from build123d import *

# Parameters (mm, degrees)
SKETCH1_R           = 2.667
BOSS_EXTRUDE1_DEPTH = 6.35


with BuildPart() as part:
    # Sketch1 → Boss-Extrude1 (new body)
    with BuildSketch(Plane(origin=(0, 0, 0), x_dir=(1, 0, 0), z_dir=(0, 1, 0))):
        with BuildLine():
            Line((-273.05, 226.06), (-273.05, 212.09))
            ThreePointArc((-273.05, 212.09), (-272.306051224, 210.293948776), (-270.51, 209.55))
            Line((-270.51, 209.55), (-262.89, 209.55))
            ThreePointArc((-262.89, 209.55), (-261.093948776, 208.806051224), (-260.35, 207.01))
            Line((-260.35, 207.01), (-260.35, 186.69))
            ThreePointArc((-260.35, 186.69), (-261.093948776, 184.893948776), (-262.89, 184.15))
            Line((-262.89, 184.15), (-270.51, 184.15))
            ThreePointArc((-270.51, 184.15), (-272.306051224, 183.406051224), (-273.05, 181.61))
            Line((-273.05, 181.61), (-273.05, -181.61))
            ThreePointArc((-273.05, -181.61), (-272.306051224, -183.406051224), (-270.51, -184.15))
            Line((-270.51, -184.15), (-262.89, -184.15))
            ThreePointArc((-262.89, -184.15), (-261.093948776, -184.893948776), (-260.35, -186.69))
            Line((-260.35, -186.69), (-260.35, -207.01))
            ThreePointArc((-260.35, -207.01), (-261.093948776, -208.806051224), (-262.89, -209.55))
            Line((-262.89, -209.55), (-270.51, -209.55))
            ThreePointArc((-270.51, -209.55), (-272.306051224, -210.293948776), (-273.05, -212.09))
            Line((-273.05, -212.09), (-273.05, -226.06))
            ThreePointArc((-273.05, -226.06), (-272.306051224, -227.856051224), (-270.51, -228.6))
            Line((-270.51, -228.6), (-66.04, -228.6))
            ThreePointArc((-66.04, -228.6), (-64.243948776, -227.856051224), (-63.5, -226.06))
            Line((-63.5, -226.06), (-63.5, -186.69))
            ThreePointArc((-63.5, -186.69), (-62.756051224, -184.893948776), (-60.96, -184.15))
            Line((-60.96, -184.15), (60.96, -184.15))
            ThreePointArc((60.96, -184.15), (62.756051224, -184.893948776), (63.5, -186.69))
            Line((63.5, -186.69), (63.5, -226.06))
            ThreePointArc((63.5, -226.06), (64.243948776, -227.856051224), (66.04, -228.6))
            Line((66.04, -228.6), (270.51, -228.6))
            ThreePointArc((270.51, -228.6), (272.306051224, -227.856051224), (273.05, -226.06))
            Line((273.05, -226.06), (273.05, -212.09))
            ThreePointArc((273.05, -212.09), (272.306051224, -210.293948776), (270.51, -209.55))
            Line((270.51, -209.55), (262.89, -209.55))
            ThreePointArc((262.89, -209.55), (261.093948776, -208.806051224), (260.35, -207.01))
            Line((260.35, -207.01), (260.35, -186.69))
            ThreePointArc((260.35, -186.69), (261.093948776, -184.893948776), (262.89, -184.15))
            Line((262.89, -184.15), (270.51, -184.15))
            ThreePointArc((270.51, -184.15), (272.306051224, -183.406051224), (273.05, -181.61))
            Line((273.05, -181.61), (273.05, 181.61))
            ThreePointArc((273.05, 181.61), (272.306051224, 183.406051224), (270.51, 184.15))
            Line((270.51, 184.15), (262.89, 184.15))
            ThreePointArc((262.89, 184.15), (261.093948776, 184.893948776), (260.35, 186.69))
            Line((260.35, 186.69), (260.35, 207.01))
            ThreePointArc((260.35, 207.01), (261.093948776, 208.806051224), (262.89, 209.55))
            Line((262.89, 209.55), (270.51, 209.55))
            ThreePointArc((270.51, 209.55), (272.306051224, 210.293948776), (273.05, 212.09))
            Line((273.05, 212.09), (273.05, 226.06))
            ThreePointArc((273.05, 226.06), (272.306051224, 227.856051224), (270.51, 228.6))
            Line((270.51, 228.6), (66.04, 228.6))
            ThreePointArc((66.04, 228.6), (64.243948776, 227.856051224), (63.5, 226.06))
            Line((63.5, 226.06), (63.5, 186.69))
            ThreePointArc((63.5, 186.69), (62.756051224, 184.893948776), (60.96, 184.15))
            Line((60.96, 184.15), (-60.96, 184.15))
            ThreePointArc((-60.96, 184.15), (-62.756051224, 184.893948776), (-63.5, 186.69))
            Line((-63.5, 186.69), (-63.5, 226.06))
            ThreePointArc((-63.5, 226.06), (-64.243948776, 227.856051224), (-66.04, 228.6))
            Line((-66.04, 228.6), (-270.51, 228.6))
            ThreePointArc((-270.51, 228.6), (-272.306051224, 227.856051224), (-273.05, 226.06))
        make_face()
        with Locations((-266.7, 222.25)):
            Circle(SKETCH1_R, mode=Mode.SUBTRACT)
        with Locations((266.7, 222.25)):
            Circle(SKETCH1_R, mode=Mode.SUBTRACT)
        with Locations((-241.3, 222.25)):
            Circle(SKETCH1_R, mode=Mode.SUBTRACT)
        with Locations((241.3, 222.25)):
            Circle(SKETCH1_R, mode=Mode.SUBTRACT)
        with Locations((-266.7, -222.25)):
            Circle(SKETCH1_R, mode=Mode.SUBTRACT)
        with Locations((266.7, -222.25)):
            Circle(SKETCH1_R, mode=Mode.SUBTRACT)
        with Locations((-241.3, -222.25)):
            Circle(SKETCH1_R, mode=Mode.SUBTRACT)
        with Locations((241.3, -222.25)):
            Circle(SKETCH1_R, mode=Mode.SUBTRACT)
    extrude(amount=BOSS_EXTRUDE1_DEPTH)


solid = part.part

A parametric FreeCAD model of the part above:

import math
import FreeCAD as App
import Part
import Sketcher

V = App.Vector
Q = App.Units.Quantity

doc = App.newDocument("Part")
params = doc.addObject("Spreadsheet::Sheet", "Params")
for row, (alias, value) in enumerate([
    ("sketch1_radius", "0.1 in"),
    ("sketch1_diameter", "0.21 in"),
    ("sketch1_width", "0.3 in"),
    ("sketch1_width2", "4.8 in"),
    ("sketch1_height", "0.8 in"),
    ("pad1_length", "0.25 in"),
], start=1):
    params.set(f"A{row}", alias)
    params.set(f"B{row}", "=" + value)
    params.setAlias(f"B{row}", alias)

body = doc.addObject("PartDesign::Body", "Body")

# Sketch on XZ plane
sketch1 = body.newObject("Sketcher::SketchObject", "Sketch")
sketch1.AttachmentSupport = (doc.getObject("XZ_Plane"), [""])
sketch1.MapMode = "FlatFace"
sketch1.addGeometry([
    Part.LineSegment(V(-273.1, -226.1, 0), V(-273.1, -212.1, 0)),  # 0
    Part.ArcOfCircle(Part.Circle(V(-270.5, -212.1, 0), V(0, 0, 1), 2.5), math.radians(90), math.radians(180)),  # 1
    Part.LineSegment(V(-270.5, -209.6, 0), V(-262.9, -209.6, 0)),  # 2
    Part.ArcOfCircle(Part.Circle(V(-262.9, -207, 0), V(0, 0, 1), 2.5), math.radians(-90), math.radians(0)),  # 3
    Part.LineSegment(V(-260.4, -207, 0), V(-260.4, -186.7, 0)),  # 4
    Part.ArcOfCircle(Part.Circle(V(-262.9, -186.7, 0), V(0, 0, 1), 2.5), math.radians(0), math.radians(90)),  # 5
    Part.LineSegment(V(-262.9, -184.2, 0), V(-270.5, -184.2, 0)),  # 6
    Part.ArcOfCircle(Part.Circle(V(-270.5, -181.6, 0), V(0, 0, 1), 2.5), math.radians(-180), math.radians(-90)),  # 7
    Part.LineSegment(V(-273.1, -181.6, 0), V(-273.1, 181.6, 0)),  # 8
    Part.ArcOfCircle(Part.Circle(V(-270.5, 181.6, 0), V(0, 0, 1), 2.5), math.radians(90), math.radians(180)),  # 9
    Part.LineSegment(V(-270.5, 184.2, 0), V(-262.9, 184.2, 0)),  # 10
    Part.ArcOfCircle(Part.Circle(V(-262.9, 186.7, 0), V(0, 0, 1), 2.5), math.radians(-90), math.radians(0)),  # 11
    Part.LineSegment(V(-260.4, 186.7, 0), V(-260.4, 207, 0)),  # 12
    Part.ArcOfCircle(Part.Circle(V(-262.9, 207, 0), V(0, 0, 1), 2.5), math.radians(0), math.radians(90)),  # 13
    Part.LineSegment(V(-262.9, 209.6, 0), V(-270.5, 209.6, 0)),  # 14
    Part.ArcOfCircle(Part.Circle(V(-270.5, 212.1, 0), V(0, 0, 1), 2.5), math.radians(-180), math.radians(-90)),  # 15
    Part.LineSegment(V(-273.1, 212.1, 0), V(-273.1, 226.1, 0)),  # 16
    Part.ArcOfCircle(Part.Circle(V(-270.5, 226.1, 0), V(0, 0, 1), 2.5), math.radians(90), math.radians(180)),  # 17
    Part.LineSegment(V(-270.5, 228.6, 0), V(-66, 228.6, 0)),  # 18
    Part.ArcOfCircle(Part.Circle(V(-66, 226.1, 0), V(0, 0, 1), 2.5), math.radians(0), math.radians(90)),  # 19
    Part.LineSegment(V(-63.5, 226.1, 0), V(-63.5, 186.7, 0)),  # 20
    Part.ArcOfCircle(Part.Circle(V(-61, 186.7, 0), V(0, 0, 1), 2.5), math.radians(-180), math.radians(-90)),  # 21
    Part.LineSegment(V(-61, 184.2, 0), V(61, 184.2, 0)),  # 22
    Part.ArcOfCircle(Part.Circle(V(61, 186.7, 0), V(0, 0, 1), 2.5), math.radians(-90), math.radians(0)),  # 23
    Part.LineSegment(V(63.5, 186.7, 0), V(63.5, 226.1, 0)),  # 24
    Part.ArcOfCircle(Part.Circle(V(66, 226.1, 0), V(0, 0, 1), 2.5), math.radians(90), math.radians(180)),  # 25
    Part.LineSegment(V(66, 228.6, 0), V(270.5, 228.6, 0)),  # 26
    Part.ArcOfCircle(Part.Circle(V(270.5, 226.1, 0), V(0, 0, 1), 2.5), math.radians(0), math.radians(90)),  # 27
    Part.LineSegment(V(273.1, 226.1, 0), V(273.1, 212.1, 0)),  # 28
    Part.ArcOfCircle(Part.Circle(V(270.5, 212.1, 0), V(0, 0, 1), 2.5), math.radians(-90), math.radians(0)),  # 29
    Part.LineSegment(V(270.5, 209.6, 0), V(262.9, 209.6, 0)),  # 30
    Part.ArcOfCircle(Part.Circle(V(262.9, 207, 0), V(0, 0, 1), 2.5), math.radians(90), math.radians(180)),  # 31
    Part.LineSegment(V(260.4, 207, 0), V(260.4, 186.7, 0)),  # 32
    Part.ArcOfCircle(Part.Circle(V(262.9, 186.7, 0), V(0, 0, 1), 2.5), math.radians(-180), math.radians(-90)),  # 33
    Part.LineSegment(V(262.9, 184.2, 0), V(270.5, 184.2, 0)),  # 34
    Part.ArcOfCircle(Part.Circle(V(270.5, 181.6, 0), V(0, 0, 1), 2.5), math.radians(0), math.radians(90)),  # 35
    Part.LineSegment(V(273.1, 181.6, 0), V(273.1, -181.6, 0)),  # 36
    Part.ArcOfCircle(Part.Circle(V(270.5, -181.6, 0), V(0, 0, 1), 2.5), math.radians(-90), math.radians(0)),  # 37
    Part.LineSegment(V(270.5, -184.2, 0), V(262.9, -184.2, 0)),  # 38
    Part.ArcOfCircle(Part.Circle(V(262.9, -186.7, 0), V(0, 0, 1), 2.5), math.radians(90), math.radians(180)),  # 39
    Part.LineSegment(V(260.4, -186.7, 0), V(260.4, -207, 0)),  # 40
    Part.ArcOfCircle(Part.Circle(V(262.9, -207, 0), V(0, 0, 1), 2.5), math.radians(-180), math.radians(-90)),  # 41
    Part.LineSegment(V(262.9, -209.6, 0), V(270.5, -209.6, 0)),  # 42
    Part.ArcOfCircle(Part.Circle(V(270.5, -212.1, 0), V(0, 0, 1), 2.5), math.radians(0), math.radians(90)),  # 43
    Part.LineSegment(V(273.1, -212.1, 0), V(273.1, -226.1, 0)),  # 44
    Part.ArcOfCircle(Part.Circle(V(270.5, -226.1, 0), V(0, 0, 1), 2.5), math.radians(-90), math.radians(0)),  # 45
    Part.LineSegment(V(270.5, -228.6, 0), V(66, -228.6, 0)),  # 46
    Part.ArcOfCircle(Part.Circle(V(66, -226.1, 0), V(0, 0, 1), 2.5), math.radians(-180), math.radians(-90)),  # 47
    Part.LineSegment(V(63.5, -226.1, 0), V(63.5, -186.7, 0)),  # 48
    Part.ArcOfCircle(Part.Circle(V(61, -186.7, 0), V(0, 0, 1), 2.5), math.radians(0), math.radians(90)),  # 49
    Part.LineSegment(V(61, -184.2, 0), V(-61, -184.2, 0)),  # 50
    Part.ArcOfCircle(Part.Circle(V(-61, -186.7, 0), V(0, 0, 1), 2.5), math.radians(90), math.radians(180)),  # 51
    Part.LineSegment(V(-63.5, -186.7, 0), V(-63.5, -226.1, 0)),  # 52
    Part.ArcOfCircle(Part.Circle(V(-66, -226.1, 0), V(0, 0, 1), 2.5), math.radians(-90), math.radians(0)),  # 53
    Part.LineSegment(V(-66, -228.6, 0), V(-270.5, -228.6, 0)),  # 54
    Part.ArcOfCircle(Part.Circle(V(-270.5, -226.1, 0), V(0, 0, 1), 2.5), math.radians(-180), math.radians(-90)),  # 55
    Part.Circle(V(-266.7, 222.2, 0), V(0, 0, 1), 2.7),  # 56
    Part.Circle(V(-241.3, 222.2, 0), V(0, 0, 1), 2.7),  # 57
    Part.Circle(V(241.3, 222.2, 0), V(0, 0, 1), 2.7),  # 58
    Part.Circle(V(266.7, 222.2, 0), V(0, 0, 1), 2.7),  # 59
    Part.Circle(V(-266.7, -222.2, 0), V(0, 0, 1), 2.7),  # 60
    Part.Circle(V(-241.3, -222.2, 0), V(0, 0, 1), 2.7),  # 61
    Part.Circle(V(241.3, -222.2, 0), V(0, 0, 1), 2.7),  # 62
    Part.Circle(V(266.7, -222.2, 0), V(0, 0, 1), 2.7),  # 63
], False)
sketch1.addConstraint([
    Sketcher.Constraint("Tangent", 0, 2, 1, 2),
    Sketcher.Constraint("Tangent", 1, 1, 2, 1),
    Sketcher.Constraint("Tangent", 2, 2, 3, 1),
    Sketcher.Constraint("Tangent", 3, 2, 4, 1),
    Sketcher.Constraint("Tangent", 4, 2, 5, 1),
    Sketcher.Constraint("Tangent", 5, 2, 6, 1),
    Sketcher.Constraint("Tangent", 6, 2, 7, 2),
    Sketcher.Constraint("Tangent", 7, 1, 8, 1),
    Sketcher.Constraint("Tangent", 8, 2, 9, 2),
    Sketcher.Constraint("Tangent", 9, 1, 10, 1),
    Sketcher.Constraint("Tangent", 10, 2, 11, 1),
    Sketcher.Constraint("Tangent", 11, 2, 12, 1),
    Sketcher.Constraint("Tangent", 12, 2, 13, 1),
    Sketcher.Constraint("Tangent", 13, 2, 14, 1),
    Sketcher.Constraint("Tangent", 14, 2, 15, 2),
    Sketcher.Constraint("Tangent", 15, 1, 16, 1),
    Sketcher.Constraint("Tangent", 16, 2, 17, 2),
    Sketcher.Constraint("Tangent", 17, 1, 18, 1),
    Sketcher.Constraint("Tangent", 18, 2, 19, 2),
    Sketcher.Constraint("Tangent", 19, 1, 20, 1),
    Sketcher.Constraint("Tangent", 20, 2, 21, 1),
    Sketcher.Constraint("Tangent", 21, 2, 22, 1),
    Sketcher.Constraint("Tangent", 22, 2, 23, 1),
    Sketcher.Constraint("Tangent", 23, 2, 24, 1),
    Sketcher.Constraint("Tangent", 24, 2, 25, 2),
    Sketcher.Constraint("Tangent", 25, 1, 26, 1),
    Sketcher.Constraint("Tangent", 26, 2, 27, 2),
    Sketcher.Constraint("Tangent", 27, 1, 28, 1),
    Sketcher.Constraint("Tangent", 28, 2, 29, 2),
    Sketcher.Constraint("Tangent", 29, 1, 30, 1),
    Sketcher.Constraint("Tangent", 30, 2, 31, 1),
    Sketcher.Constraint("Tangent", 31, 2, 32, 1),
    Sketcher.Constraint("Tangent", 32, 2, 33, 1),
    Sketcher.Constraint("Tangent", 33, 2, 34, 1),
    Sketcher.Constraint("Tangent", 34, 2, 35, 2),
    Sketcher.Constraint("Tangent", 35, 1, 36, 1),
    Sketcher.Constraint("Tangent", 36, 2, 37, 2),
    Sketcher.Constraint("Tangent", 37, 1, 38, 1),
    Sketcher.Constraint("Tangent", 38, 2, 39, 1),
    Sketcher.Constraint("Tangent", 39, 2, 40, 1),
    Sketcher.Constraint("Tangent", 40, 2, 41, 1),
    Sketcher.Constraint("Tangent", 41, 2, 42, 1),
    Sketcher.Constraint("Tangent", 42, 2, 43, 2),
    Sketcher.Constraint("Tangent", 43, 1, 44, 1),
    Sketcher.Constraint("Tangent", 44, 2, 45, 2),
    Sketcher.Constraint("Tangent", 45, 1, 46, 1),
    Sketcher.Constraint("Tangent", 46, 2, 47, 2),
    Sketcher.Constraint("Tangent", 47, 1, 48, 1),
    Sketcher.Constraint("Tangent", 48, 2, 49, 1),
    Sketcher.Constraint("Tangent", 49, 2, 50, 1),
    Sketcher.Constraint("Tangent", 50, 2, 51, 1),
    Sketcher.Constraint("Tangent", 51, 2, 52, 1),
    Sketcher.Constraint("Tangent", 52, 2, 53, 2),
    Sketcher.Constraint("Tangent", 53, 1, 54, 1),
    Sketcher.Constraint("Tangent", 54, 2, 55, 2),
    Sketcher.Constraint("Tangent", 55, 1, 0, 1),
    Sketcher.Constraint("Vertical", 0),
    Sketcher.Constraint("Horizontal", 2),
    Sketcher.Constraint("Vertical", 4),
    Sketcher.Constraint("Horizontal", 6),
    Sketcher.Constraint("Vertical", 8),
    Sketcher.Constraint("Horizontal", 10),
    Sketcher.Constraint("Vertical", 12),
    Sketcher.Constraint("Horizontal", 14),
    Sketcher.Constraint("Vertical", 16),
    Sketcher.Constraint("Horizontal", 18),
    Sketcher.Constraint("Vertical", 20),
    Sketcher.Constraint("Horizontal", 22),
    Sketcher.Constraint("Vertical", 24),
    Sketcher.Constraint("Horizontal", 26),
    Sketcher.Constraint("Vertical", 28),
    Sketcher.Constraint("Horizontal", 30),
    Sketcher.Constraint("Vertical", 32),
    Sketcher.Constraint("Horizontal", 34),
    Sketcher.Constraint("Vertical", 36),
    Sketcher.Constraint("Horizontal", 38),
    Sketcher.Constraint("Vertical", 40),
    Sketcher.Constraint("Horizontal", 42),
    Sketcher.Constraint("Vertical", 44),
    Sketcher.Constraint("Horizontal", 46),
    Sketcher.Constraint("Vertical", 48),
    Sketcher.Constraint("Horizontal", 50),
    Sketcher.Constraint("Vertical", 52),
    Sketcher.Constraint("Horizontal", 54),
    Sketcher.Constraint("Equal", 1, 3),
    Sketcher.Constraint("Equal", 3, 5),
    Sketcher.Constraint("Equal", 5, 7),
    Sketcher.Constraint("Equal", 7, 9),
    Sketcher.Constraint("Equal", 9, 11),
    Sketcher.Constraint("Equal", 11, 13),
    Sketcher.Constraint("Equal", 13, 15),
    Sketcher.Constraint("Equal", 15, 17),
    Sketcher.Constraint("Equal", 17, 19),
    Sketcher.Constraint("Equal", 19, 21),
    Sketcher.Constraint("Equal", 21, 23),
    Sketcher.Constraint("Equal", 23, 25),
    Sketcher.Constraint("Equal", 25, 27),
    Sketcher.Constraint("Equal", 27, 29),
    Sketcher.Constraint("Equal", 29, 31),
    Sketcher.Constraint("Equal", 31, 33),
    Sketcher.Constraint("Equal", 33, 35),
    Sketcher.Constraint("Equal", 35, 37),
    Sketcher.Constraint("Equal", 37, 39),
    Sketcher.Constraint("Equal", 39, 41),
    Sketcher.Constraint("Equal", 41, 43),
    Sketcher.Constraint("Equal", 43, 45),
    Sketcher.Constraint("Equal", 45, 47),
    Sketcher.Constraint("Equal", 47, 49),
    Sketcher.Constraint("Equal", 49, 51),
    Sketcher.Constraint("Equal", 51, 53),
    Sketcher.Constraint("Equal", 53, 55),
    Sketcher.Constraint("Equal", 56, 57),
    Sketcher.Constraint("Equal", 57, 58),
    Sketcher.Constraint("Equal", 58, 59),
    Sketcher.Constraint("Equal", 59, 60),
    Sketcher.Constraint("Equal", 60, 61),
    Sketcher.Constraint("Equal", 61, 62),
    Sketcher.Constraint("Equal", 62, 63),
    Sketcher.Constraint("Symmetric", 1, 3, 29, 3, -1, 1),
    Sketcher.Constraint("Symmetric", 5, 3, 33, 3, -1, 1),
    Sketcher.Constraint("Symmetric", 9, 3, 37, 3, -1, 1),
    Sketcher.Constraint("Symmetric", 13, 3, 41, 3, -1, 1),
    Sketcher.Constraint("Symmetric", 17, 3, 45, 3, -1, 1),
    Sketcher.Constraint("Symmetric", 21, 3, 49, 3, -1, 1),
    Sketcher.Constraint("Symmetric", 25, 3, 53, 3, -1, 1),
    Sketcher.Constraint("Symmetric", 59, 3, 60, 3, -1, 1),
    Sketcher.Constraint("Symmetric", 58, 3, 61, 3, -1, 1),
    Sketcher.Constraint("Symmetric", 57, 3, 62, 3, -1, 1),
    Sketcher.Constraint("Symmetric", 56, 3, 63, 3, -1, 1),
    Sketcher.Constraint("Symmetric", 19, 3, 25, 3, -2),
    Sketcher.Constraint("Symmetric", 15, 3, 29, 3, -2),
    Sketcher.Constraint("Symmetric", 11, 3, 33, 3, -2),
    Sketcher.Constraint("Symmetric", 57, 3, 58, 3, -2),
    Sketcher.Constraint("Symmetric", 56, 3, 59, 3, -2),
    Sketcher.Constraint("Horizontal", 11, 3, 21, 3),
    Sketcher.Constraint("Horizontal", 56, 3, 57, 3),
    Sketcher.Constraint("Vertical", 1, 3, 7, 3),
    Sketcher.Constraint("Radius", 1, Q("0.1 in")),
    Sketcher.Constraint("Diameter", 56, Q("0.21 in")),
    Sketcher.Constraint("DistanceX", 2, 1, 2, 2, Q("0.3 in")),
    Sketcher.Constraint("DistanceX", 22, 1, 22, 2, Q("4.8 in")),
    Sketcher.Constraint("DistanceY", 4, 1, 4, 2, Q("0.8 in")),
    Sketcher.Constraint("DistanceY", 8, 1, 8, 2, Q("14.3 in")),
    Sketcher.Constraint("DistanceY", -1, 1, 17, 1, Q("9 in")),
    Sketcher.Constraint("DistanceX", 18, 1, 18, 2, Q("8.05 in")),
    Sketcher.Constraint("DistanceX", 56, 3, -1, 1, Q("10.5 in")),
    Sketcher.Constraint("DistanceX", 57, 3, -1, 1, Q("9.5 in")),
    Sketcher.Constraint("DistanceY", -1, 1, 56, 3, Q("8.75 in")),
])
sketch1.setExpression("Constraints[137]", "Params.sketch1_radius")
sketch1.setExpression("Constraints[138]", "Params.sketch1_diameter")
sketch1.setExpression("Constraints[139]", "Params.sketch1_width")
sketch1.setExpression("Constraints[140]", "Params.sketch1_width2")
sketch1.setExpression("Constraints[141]", "Params.sketch1_height")
pad1 = body.newObject("PartDesign::Pad", "Pad")
pad1.Profile = sketch1
pad1.setExpression("Length", "Params.pad1_length")
pad1.Reversed = True

doc.recompute()
